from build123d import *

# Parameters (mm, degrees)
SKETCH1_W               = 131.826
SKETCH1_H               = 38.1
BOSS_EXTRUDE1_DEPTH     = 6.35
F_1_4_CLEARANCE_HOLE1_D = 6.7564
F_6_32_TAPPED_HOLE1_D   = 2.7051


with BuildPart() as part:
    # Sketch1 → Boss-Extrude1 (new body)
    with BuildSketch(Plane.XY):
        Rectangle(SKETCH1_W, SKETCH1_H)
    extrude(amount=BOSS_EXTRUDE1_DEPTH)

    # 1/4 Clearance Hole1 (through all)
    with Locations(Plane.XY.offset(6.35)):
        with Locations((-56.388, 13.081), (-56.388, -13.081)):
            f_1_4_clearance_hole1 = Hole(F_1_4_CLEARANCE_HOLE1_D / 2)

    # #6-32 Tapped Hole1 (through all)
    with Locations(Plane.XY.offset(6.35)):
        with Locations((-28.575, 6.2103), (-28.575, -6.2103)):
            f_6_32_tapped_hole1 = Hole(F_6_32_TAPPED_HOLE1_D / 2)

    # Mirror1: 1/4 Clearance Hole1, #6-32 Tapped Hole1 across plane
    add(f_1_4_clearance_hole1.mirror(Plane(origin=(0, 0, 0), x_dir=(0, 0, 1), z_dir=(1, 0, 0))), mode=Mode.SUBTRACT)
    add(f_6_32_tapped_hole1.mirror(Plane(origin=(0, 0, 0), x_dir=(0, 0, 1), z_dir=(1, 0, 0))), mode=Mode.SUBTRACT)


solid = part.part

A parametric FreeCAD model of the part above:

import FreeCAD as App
import Part
import Sketcher
from FreeCAD import Vector
Q = App.Units.Quantity


def add_polygon(sketch, points):
    """Adds a closed chain of lines whose ends are joined by coincident constraints."""
    first, n = sketch.GeometryCount, len(points)
    for a, b in zip(points, points[1:] + points[:1]):
        sketch.addGeometry(Part.LineSegment(App.Vector(*a, 0), App.Vector(*b, 0)), False)
    for i in range(n):
        sketch.addConstraint(Sketcher.Constraint("Coincident", first + i, 2, first + (i + 1) % n, 1))

doc = App.newDocument("Part")
params = doc.addObject("Spreadsheet::Sheet", "Params")
for row, (alias, value) in enumerate([
    ("sketch1_height", "1.5 in"),
    ("sketch1_width", "5.19 in"),
    ("pad1_length", "0.25 in"),
    ("sketch2_diameter", "0.266 in"),
    ("hole_diameter", "0.266 in"),
    ("hole2_diameter", "0.1065 in"),
], start=1):
    params.set(f"A{row}", alias)
    params.set(f"B{row}", "=" + value)
    params.setAlias(f"B{row}", alias)

body = doc.addObject("PartDesign::Body", "Body")

sketch1 = body.newObject("Sketcher::SketchObject", "Sketch")
sketch1.AttachmentSupport = (doc.getObject("XY_Plane"), [""])
sketch1.MapMode = "FlatFace"
add_polygon(sketch1, [(-66, 19), (-66, -19), (66, -19), (66, 19)])
sketch1.addConstraint(Sketcher.Constraint("Vertical", 0))
sketch1.addConstraint(Sketcher.Constraint("Horizontal", 1))
sketch1.addConstraint(Sketcher.Constraint("Vertical", 2))
sketch1.addConstraint(Sketcher.Constraint("Horizontal", 3))
sketch1.addConstraint(Sketcher.Constraint("Symmetric", 0, 2, 2, 2, -1, 1))
sketch1.addConstraint(Sketcher.Constraint("DistanceY", 0, 2, 0, 1, Q("1.5 in")))
sketch1.addConstraint(Sketcher.Constraint("DistanceX", 1, 1, 1, 2, Q("5.19 in")))
sketch1.setExpression("Constraints[9]", "Params.sketch1_height")
sketch1.setExpression("Constraints[10]", "Params.sketch1_width")
pad1 = body.newObject("PartDesign::Pad", "Pad")
pad1.Profile = sketch1
pad1.setExpression("Length", "Params.pad1_length")

sketch2 = body.newObject("Sketcher::SketchObject", "Sketch001")
sketch2.AttachmentSupport = (doc.getObject("XY_Plane"), [""])
sketch2.MapMode = "FlatFace"
sketch2.AttachmentOffset = App.Placement(Vector(0, 0, 0.25 * 25.4), App.Rotation())
sketch2.addGeometry(Part.Circle(Vector(-56.4, 13.1, 0), Vector(0, 0, 1), 3.4), False)
sketch2.addGeometry(Part.Circle(Vector(-56.4, -13.1, 0), Vector(0, 0, 1), 3.4), False)
sketch2.addConstraint(Sketcher.Constraint("Equal", 0, 1))
sketch2.addConstraint(Sketcher.Constraint("Symmetric", 0, 3, 1, 3, -1))
sketch2.addConstraint(Sketcher.Constraint("Diameter", 0, Q("0.266 in")))
sketch2.addConstraint(Sketcher.Constraint("DistanceX", 0, 3, -1, 1, Q("2.22 in")))
sketch2.addConstraint(Sketcher.Constraint("DistanceY", 1, 3, 0, 3, Q("1.03 in")))
sketch2.setExpression("Constraints[2]", "Params.sketch2_diameter")
doc.recompute()
hole = body.newObject("PartDesign::Hole", "Hole")
hole.Profile = sketch2
hole.ThreadType = "None"
hole.setExpression("Diameter", "Params.hole_diameter")
hole.DepthType = "ThroughAll"

sketch3 = body.newObject("Sketcher::SketchObject", "Sketch002")
sketch3.AttachmentSupport = (doc.getObject("XY_Plane"), [""])
sketch3.MapMode = "FlatFace"
sketch3.AttachmentOffset = App.Placement(Vector(0, 0, 0.25 * 25.4), App.Rotation())
sketch3.addGeometry(Part.Circle(Vector(-28.6, 6.2, 0), Vector(0, 0, 1), 1.4), False)
sketch3.addGeometry(Part.Circle(Vector(-28.6, -6.2, 0), Vector(0, 0, 1), 1.4), False)
sketch3.addConstraint(Sketcher.Constraint("Equal", 0, 1))
sketch3.addConstraint(Sketcher.Constraint("Symmetric", 0, 3, 1, 3, -1))
sketch3.addConstraint(Sketcher.Constraint("Diameter", 0, Q("0.1065 in")))
sketch3.addConstraint(Sketcher.Constraint("DistanceX", 0, 3, -1, 1, Q("1.125 in")))
sketch3.addConstraint(Sketcher.Constraint("DistanceY", 1, 3, 0, 3, Q("0.489 in")))
doc.recompute()
hole2 = body.newObject("PartDesign::Hole", "Hole001")
hole2.Profile = sketch3
hole2.ThreadType = "None"
hole2.setExpression("Diameter", "Params.hole2_diameter")
hole2.DepthType = "ThroughAll"
doc.recompute()

mirrored = body.newObject("PartDesign::Mirrored", "Mirrored")
mirrored.Originals = [hole, hole2]
mirrored.MirrorPlane = (doc.getObject("YZ_Plane"), [""])
body.Tip = mirrored

doc.recompute()
